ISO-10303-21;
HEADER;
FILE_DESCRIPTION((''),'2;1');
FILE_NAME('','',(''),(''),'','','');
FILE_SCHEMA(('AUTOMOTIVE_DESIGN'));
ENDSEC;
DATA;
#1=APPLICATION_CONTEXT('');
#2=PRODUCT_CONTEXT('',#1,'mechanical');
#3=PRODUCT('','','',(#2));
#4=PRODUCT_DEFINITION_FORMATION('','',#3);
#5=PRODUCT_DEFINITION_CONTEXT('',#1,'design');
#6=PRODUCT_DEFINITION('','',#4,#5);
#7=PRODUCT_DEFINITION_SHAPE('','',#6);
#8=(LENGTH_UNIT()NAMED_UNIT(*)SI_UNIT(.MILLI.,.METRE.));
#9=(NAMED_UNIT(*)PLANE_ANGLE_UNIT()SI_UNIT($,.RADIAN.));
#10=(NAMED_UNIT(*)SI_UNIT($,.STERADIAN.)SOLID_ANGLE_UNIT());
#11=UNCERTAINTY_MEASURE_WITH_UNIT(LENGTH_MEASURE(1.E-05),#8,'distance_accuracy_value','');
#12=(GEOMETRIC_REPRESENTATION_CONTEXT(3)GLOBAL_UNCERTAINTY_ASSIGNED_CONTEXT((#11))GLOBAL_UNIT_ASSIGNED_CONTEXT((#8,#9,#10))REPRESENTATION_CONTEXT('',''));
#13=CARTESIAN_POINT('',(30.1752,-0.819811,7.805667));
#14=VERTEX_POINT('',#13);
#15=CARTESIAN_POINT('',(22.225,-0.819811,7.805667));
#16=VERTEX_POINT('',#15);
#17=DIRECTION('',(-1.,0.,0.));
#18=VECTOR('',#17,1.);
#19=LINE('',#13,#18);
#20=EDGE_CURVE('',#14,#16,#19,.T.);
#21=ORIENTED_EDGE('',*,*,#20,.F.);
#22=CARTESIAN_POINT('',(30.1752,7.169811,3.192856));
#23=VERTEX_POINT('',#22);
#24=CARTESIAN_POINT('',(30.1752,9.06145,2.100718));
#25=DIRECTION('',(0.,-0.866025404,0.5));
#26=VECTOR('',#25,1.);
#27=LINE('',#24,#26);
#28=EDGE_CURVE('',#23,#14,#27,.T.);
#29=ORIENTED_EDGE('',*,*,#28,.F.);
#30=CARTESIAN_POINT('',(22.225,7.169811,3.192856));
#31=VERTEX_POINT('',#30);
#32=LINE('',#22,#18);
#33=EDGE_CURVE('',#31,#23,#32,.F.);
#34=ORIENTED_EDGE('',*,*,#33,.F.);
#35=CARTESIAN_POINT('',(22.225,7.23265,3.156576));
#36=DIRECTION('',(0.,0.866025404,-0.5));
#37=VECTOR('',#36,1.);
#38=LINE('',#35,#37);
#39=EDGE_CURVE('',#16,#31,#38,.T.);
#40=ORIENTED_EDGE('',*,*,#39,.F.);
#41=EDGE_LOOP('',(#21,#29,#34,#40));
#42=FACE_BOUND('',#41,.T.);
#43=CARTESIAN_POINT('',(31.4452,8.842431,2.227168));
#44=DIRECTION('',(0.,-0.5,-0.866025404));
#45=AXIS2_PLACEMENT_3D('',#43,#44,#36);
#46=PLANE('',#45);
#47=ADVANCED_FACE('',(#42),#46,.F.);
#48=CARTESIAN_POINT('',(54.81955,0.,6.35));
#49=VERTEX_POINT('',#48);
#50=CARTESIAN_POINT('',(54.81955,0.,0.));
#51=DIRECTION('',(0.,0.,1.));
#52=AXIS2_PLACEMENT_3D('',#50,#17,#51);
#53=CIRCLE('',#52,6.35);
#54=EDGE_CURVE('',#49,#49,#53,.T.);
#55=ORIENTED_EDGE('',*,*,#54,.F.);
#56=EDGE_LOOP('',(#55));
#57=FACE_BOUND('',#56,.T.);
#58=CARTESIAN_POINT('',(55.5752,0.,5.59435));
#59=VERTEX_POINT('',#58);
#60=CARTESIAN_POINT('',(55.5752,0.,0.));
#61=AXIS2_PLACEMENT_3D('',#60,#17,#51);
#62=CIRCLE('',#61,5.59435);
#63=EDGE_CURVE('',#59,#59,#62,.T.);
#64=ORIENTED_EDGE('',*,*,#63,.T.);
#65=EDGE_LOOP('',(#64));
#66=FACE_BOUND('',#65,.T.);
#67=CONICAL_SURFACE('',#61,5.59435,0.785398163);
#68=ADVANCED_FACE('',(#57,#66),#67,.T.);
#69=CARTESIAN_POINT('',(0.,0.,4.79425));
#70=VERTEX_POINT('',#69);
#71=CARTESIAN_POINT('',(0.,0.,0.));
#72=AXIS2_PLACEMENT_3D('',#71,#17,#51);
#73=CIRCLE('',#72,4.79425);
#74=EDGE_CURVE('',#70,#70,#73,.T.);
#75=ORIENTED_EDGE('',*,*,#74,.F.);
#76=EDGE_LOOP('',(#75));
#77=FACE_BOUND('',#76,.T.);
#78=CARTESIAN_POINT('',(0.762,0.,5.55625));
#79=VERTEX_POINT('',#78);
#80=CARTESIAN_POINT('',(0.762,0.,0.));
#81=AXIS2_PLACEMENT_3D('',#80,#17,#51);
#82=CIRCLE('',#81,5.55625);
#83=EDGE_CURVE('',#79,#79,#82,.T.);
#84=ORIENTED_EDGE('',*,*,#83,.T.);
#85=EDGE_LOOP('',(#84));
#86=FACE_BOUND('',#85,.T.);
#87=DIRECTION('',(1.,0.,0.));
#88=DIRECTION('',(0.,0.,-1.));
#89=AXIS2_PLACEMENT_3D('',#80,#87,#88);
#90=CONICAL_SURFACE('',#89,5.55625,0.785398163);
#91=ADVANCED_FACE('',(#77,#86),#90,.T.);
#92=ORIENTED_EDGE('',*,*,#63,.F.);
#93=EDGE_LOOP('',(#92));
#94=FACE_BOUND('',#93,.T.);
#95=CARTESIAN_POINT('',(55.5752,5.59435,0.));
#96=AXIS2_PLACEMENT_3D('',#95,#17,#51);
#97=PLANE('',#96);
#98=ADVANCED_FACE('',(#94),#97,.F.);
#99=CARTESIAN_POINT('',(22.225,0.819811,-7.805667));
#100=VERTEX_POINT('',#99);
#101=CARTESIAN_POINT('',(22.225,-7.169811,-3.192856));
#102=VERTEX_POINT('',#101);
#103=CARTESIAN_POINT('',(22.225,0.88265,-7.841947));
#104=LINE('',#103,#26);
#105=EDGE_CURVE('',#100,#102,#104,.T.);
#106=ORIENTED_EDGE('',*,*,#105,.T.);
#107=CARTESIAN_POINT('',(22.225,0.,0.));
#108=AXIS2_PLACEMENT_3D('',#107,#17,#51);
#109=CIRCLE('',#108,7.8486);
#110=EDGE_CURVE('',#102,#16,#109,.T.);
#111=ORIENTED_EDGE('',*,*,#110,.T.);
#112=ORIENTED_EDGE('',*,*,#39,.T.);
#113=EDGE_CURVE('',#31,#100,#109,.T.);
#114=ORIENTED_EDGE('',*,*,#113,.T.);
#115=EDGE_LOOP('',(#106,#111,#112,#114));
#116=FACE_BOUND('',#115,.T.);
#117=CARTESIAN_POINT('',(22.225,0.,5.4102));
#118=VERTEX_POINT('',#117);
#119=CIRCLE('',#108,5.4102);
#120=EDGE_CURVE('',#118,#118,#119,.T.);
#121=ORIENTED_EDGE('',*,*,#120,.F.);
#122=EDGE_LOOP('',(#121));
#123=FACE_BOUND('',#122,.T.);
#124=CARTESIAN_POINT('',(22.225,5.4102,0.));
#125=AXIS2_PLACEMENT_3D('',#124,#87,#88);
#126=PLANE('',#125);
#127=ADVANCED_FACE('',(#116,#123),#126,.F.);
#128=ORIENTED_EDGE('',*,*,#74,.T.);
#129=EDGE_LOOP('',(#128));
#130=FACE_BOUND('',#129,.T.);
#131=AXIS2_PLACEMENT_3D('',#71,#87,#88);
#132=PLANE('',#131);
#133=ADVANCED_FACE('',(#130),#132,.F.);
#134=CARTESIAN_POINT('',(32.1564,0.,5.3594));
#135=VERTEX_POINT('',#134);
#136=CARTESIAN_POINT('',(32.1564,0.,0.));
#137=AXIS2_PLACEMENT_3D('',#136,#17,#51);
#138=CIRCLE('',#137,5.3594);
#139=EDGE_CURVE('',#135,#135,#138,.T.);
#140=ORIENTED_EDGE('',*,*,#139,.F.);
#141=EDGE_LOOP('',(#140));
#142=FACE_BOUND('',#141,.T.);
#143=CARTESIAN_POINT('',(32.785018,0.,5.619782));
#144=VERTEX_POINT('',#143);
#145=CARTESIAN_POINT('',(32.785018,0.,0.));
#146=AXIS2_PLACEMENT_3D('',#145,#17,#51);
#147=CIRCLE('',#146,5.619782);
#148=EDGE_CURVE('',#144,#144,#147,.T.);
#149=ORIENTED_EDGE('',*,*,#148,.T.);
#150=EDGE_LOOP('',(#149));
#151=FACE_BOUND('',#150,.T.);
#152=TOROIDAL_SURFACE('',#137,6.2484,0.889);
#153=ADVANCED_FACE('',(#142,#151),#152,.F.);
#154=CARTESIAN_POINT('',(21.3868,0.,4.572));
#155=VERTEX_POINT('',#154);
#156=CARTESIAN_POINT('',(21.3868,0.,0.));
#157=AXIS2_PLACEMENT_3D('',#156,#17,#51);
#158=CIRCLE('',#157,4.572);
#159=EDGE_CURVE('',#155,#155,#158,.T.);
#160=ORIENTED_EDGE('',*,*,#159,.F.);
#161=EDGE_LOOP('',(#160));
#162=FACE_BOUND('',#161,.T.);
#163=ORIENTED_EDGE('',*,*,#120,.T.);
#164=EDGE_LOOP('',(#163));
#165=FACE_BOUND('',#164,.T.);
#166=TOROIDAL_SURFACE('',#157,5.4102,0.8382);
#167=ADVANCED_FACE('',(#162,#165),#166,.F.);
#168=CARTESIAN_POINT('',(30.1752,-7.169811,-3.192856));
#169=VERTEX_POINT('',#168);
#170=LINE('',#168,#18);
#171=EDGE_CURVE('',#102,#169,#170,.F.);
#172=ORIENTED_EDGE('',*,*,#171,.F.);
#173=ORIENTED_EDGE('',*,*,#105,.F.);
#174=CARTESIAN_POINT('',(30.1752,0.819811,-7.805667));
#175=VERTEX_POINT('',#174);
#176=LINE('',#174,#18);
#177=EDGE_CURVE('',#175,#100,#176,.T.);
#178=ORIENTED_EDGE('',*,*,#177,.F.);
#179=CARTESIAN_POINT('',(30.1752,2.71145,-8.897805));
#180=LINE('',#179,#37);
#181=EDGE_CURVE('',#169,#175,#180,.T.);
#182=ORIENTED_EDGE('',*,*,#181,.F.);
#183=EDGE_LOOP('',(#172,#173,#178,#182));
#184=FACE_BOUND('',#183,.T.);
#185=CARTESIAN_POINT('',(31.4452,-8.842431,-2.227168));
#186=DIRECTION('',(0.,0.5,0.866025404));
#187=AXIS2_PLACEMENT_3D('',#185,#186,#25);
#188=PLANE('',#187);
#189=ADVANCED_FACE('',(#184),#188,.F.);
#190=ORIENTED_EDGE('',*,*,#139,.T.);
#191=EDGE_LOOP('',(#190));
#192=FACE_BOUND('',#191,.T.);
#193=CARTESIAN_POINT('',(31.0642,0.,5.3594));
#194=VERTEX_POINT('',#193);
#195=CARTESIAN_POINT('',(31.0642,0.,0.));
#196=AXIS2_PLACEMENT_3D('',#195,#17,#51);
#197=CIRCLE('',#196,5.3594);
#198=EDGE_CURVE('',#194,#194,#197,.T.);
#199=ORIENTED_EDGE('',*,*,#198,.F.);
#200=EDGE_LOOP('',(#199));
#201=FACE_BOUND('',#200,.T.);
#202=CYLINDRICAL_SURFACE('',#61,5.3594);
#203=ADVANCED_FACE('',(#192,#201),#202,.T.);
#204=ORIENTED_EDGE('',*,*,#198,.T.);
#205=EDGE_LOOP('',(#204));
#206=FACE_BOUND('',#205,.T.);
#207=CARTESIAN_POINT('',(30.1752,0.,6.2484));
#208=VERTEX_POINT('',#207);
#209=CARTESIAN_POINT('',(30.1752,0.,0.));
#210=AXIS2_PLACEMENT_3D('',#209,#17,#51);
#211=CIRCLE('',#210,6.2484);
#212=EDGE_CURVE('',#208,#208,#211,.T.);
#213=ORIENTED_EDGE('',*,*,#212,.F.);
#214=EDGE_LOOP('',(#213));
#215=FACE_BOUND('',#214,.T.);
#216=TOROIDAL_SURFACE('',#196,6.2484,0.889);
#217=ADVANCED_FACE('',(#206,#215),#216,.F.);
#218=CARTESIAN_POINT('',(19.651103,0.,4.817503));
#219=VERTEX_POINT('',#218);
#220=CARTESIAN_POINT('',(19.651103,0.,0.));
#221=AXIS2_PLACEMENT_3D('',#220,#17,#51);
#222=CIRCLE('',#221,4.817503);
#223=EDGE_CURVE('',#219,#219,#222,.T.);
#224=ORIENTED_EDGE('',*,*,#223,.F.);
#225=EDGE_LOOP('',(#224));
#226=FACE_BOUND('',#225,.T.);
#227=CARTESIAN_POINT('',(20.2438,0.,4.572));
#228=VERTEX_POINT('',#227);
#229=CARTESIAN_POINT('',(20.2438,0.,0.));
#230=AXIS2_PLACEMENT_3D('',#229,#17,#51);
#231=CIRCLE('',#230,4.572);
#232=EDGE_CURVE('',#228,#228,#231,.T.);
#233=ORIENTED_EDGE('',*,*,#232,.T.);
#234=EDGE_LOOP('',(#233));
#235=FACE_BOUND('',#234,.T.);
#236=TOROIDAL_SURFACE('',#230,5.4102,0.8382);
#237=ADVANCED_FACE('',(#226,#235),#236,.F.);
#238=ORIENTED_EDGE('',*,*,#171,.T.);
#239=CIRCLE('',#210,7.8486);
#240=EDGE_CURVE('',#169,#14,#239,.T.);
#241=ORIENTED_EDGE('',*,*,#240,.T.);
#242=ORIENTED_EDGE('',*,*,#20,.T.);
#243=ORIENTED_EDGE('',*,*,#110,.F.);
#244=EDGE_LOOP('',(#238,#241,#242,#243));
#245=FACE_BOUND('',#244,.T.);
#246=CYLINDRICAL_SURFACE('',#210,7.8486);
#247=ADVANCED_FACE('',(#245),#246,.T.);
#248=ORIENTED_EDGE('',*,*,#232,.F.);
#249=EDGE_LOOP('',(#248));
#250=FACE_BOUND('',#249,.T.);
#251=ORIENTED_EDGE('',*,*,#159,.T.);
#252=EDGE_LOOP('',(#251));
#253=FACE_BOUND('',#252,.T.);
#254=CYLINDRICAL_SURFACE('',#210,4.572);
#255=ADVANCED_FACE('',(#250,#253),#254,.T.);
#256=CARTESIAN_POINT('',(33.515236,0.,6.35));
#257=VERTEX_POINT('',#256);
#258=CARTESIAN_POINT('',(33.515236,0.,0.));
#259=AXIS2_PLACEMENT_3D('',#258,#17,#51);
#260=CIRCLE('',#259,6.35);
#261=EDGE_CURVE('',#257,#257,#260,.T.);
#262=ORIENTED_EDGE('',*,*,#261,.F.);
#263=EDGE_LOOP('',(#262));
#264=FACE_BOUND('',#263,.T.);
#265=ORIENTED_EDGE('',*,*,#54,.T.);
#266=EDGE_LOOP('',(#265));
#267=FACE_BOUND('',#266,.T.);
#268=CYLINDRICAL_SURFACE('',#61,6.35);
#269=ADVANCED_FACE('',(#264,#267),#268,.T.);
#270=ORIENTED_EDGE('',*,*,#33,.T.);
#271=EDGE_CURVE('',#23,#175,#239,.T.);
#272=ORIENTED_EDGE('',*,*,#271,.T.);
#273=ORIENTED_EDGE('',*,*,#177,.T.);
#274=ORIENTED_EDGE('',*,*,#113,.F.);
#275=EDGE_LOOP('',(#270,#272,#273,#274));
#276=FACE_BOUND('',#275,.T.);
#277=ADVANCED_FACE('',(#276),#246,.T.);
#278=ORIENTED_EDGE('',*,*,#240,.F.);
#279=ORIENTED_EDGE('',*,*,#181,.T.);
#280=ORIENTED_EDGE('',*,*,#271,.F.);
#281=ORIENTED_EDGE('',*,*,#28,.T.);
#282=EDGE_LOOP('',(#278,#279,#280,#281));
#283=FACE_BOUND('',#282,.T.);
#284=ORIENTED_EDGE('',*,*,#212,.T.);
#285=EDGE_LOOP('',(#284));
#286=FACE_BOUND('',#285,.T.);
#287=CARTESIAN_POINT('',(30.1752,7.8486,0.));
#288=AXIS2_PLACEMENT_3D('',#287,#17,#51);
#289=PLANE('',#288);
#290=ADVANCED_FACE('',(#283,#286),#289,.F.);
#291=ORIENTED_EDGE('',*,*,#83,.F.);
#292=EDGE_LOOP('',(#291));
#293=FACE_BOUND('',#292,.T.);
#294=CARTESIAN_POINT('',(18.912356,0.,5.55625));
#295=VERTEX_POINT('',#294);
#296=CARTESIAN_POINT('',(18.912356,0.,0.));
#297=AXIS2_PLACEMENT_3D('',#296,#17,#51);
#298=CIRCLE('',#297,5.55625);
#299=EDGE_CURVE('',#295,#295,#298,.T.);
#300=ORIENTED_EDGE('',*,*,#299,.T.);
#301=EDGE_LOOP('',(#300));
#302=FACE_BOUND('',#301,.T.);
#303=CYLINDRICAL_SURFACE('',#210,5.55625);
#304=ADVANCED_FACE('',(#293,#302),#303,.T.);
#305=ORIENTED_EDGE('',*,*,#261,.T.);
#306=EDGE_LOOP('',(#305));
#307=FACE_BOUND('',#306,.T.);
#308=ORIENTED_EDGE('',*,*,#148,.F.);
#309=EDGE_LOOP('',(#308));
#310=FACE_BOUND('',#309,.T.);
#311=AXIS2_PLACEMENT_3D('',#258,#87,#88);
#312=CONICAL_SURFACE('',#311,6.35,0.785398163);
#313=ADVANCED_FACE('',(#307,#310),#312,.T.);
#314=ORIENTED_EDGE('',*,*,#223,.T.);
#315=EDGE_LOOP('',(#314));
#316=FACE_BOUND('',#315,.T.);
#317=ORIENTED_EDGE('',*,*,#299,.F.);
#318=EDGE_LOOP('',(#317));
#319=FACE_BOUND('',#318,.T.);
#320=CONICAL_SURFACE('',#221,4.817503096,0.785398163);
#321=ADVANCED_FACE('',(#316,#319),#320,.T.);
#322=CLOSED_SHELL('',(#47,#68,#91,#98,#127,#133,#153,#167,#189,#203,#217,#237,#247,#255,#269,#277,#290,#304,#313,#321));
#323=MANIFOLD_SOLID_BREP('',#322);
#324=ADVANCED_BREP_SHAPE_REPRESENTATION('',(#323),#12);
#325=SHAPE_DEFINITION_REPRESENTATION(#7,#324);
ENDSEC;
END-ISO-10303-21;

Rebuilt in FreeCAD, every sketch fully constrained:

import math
import FreeCAD as App
import Part
import Sketcher
from FreeCAD import Vector
Q = App.Units.Quantity

doc = App.newDocument("Part")
params = doc.addObject("Spreadsheet::Sheet", "Params")
for row, (alias, value) in enumerate([
    ("sketch1_radius", "0.033 in"),
    ("sketch1_width", "1.188 in"),
    ("sketch1_width2", "0.313 in"),
    ("sketch1_width3", "0.045 in"),
    ("sketch1_height", "0.309 in"),
    ("revolution_angle", "360 deg"),
    ("sketch2_width", "1 in"),
    ("sketch2_radius", "0.035 in"),
    ("sketch2_width2", "0.043 in"),
    ("sketch2_height", "0.246 in"),
    ("revolution2_angle", "360 deg"),
    ("sketch3_radius", "0.359 in"),
    ("sketch3_length", "1.26 in"),
    ("pocket1_length", "1.238 in"),
], start=1):
    params.set(f"A{row}", alias)
    params.set(f"B{row}", "=" + value)
    params.setAlias(f"B{row}", alias)

body = doc.addObject("PartDesign::Body", "Body")

sketch1 = body.newObject("Sketcher::SketchObject", "Sketch")
sketch1.AttachmentSupport = (doc.getObject("XY_Plane"), [""])
sketch1.MapMode = "FlatFace"
sketch1.addGeometry(Part.LineSegment(Vector(0, 4.8, 0), Vector(0, 0, 0)), False)
sketch1.addGeometry(Part.LineSegment(Vector(0, 0, 0), Vector(30.2, 0, 0)), False)
sketch1.addGeometry(Part.LineSegment(Vector(30.2, 0, 0), Vector(30.2, 7.8, 0)), False)
sketch1.addGeometry(Part.LineSegment(Vector(30.2, 7.8, 0), Vector(22.2, 7.8, 0)), False)
sketch1.addGeometry(Part.LineSegment(Vector(22.2, 7.8, 0), Vector(22.2, 5.4, 0)), False)
sketch1.addGeometry(Part.ArcOfCircle(Part.Circle(Vector(21.4, 5.4, 0), Vector(0, 0, 1), 0.8), math.radians(-90), math.radians(0)), False)
sketch1.addGeometry(Part.LineSegment(Vector(21.4, 4.6, 0), Vector(20.2, 4.6, 0)), False)
sketch1.addGeometry(Part.ArcOfCircle(Part.Circle(Vector(20.2, 5.4, 0), Vector(0, 0, 1), 0.8), math.radians(-135), math.radians(-90)), False)
sketch1.addGeometry(Part.LineSegment(Vector(19.7, 4.8, 0), Vector(18.9, 5.6, 0)), False)
sketch1.addGeometry(Part.LineSegment(Vector(18.9, 5.6, 0), Vector(0.8, 5.6, 0)), False)
sketch1.addGeometry(Part.LineSegment(Vector(0.8, 5.6, 0), Vector(0, 4.8, 0)), False)
sketch1.addConstraint(Sketcher.Constraint("Coincident", 0, 2, 1, 1))
sketch1.addConstraint(Sketcher.Constraint("Coincident", 1, 2, 2, 1))
sketch1.addConstraint(Sketcher.Constraint("Coincident", 2, 2, 3, 1))
sketch1.addConstraint(Sketcher.Constraint("Coincident", 3, 2, 4, 1))
sketch1.addConstraint(Sketcher.Constraint("Tangent", 4, 2, 5, 2))
sketch1.addConstraint(Sketcher.Constraint("Tangent", 5, 1, 6, 1))
sketch1.addConstraint(Sketcher.Constraint("Tangent", 6, 2, 7, 2))
sketch1.addConstraint(Sketcher.Constraint("Tangent", 7, 1, 8, 1))
sketch1.addConstraint(Sketcher.Constraint("Coincident", 8, 2, 9, 1))
sketch1.addConstraint(Sketcher.Constraint("Coincident", 9, 2, 10, 1))
sketch1.addConstraint(Sketcher.Constraint("Coincident", 10, 2, 0, 1))
sketch1.addConstraint(Sketcher.Constraint("Vertical", 0))
sketch1.addConstraint(Sketcher.Constraint("Horizontal", 1))
sketch1.addConstraint(Sketcher.Constraint("Vertical", 2))
sketch1.addConstraint(Sketcher.Constraint("Horizontal", 3))
sketch1.addConstraint(Sketcher.Constraint("Vertical", 4))
sketch1.addConstraint(Sketcher.Constraint("Horizontal", 6))
sketch1.addConstraint(Sketcher.Constraint("Horizontal", 9))
sketch1.addConstraint(Sketcher.Constraint("Coincident", 0, 2, -1, 1))
sketch1.addConstraint(Sketcher.Constraint("Equal", 5, 7))
sketch1.addConstraint(Sketcher.Constraint("Perpendicular", 8, 10))
sketch1.addConstraint(Sketcher.Constraint("Angle", 8, Q("135 deg")))
sketch1.addConstraint(Sketcher.Constraint("Radius", 5, Q("0.033 in")))
sketch1.addConstraint(Sketcher.Constraint("DistanceX", 1, 1, 1, 2, Q("1.188 in")))
sketch1.addConstraint(Sketcher.Constraint("DistanceX", 3, 2, 3, 1, Q("0.313 in")))
sketch1.addConstraint(Sketcher.Constraint("DistanceX", 6, 2, 6, 1, Q("0.045 in")))
sketch1.addConstraint(Sketcher.Constraint("DistanceY", 2, 1, 2, 2, Q("0.309 in")))
sketch1.addConstraint(Sketcher.Constraint("DistanceY", 4, 2, 4, 1, Q("0.096 in")))
sketch1.addConstraint(Sketcher.Constraint("DistanceX", -1, 1, 9, 2, Q("0.03 in")))
sketch1.addConstraint(Sketcher.Constraint("DistanceY", -1, 1, 8, 2, Q("0.21875 in")))
sketch1.setExpression("Constraints[22]", "Params.sketch1_radius")
sketch1.setExpression("Constraints[23]", "Params.sketch1_width")
sketch1.setExpression("Constraints[24]", "Params.sketch1_width2")
sketch1.setExpression("Constraints[25]", "Params.sketch1_width3")
sketch1.setExpression("Constraints[26]", "Params.sketch1_height")
revolution = body.newObject("PartDesign::Revolution", "Revolution")
revolution.Profile = sketch1
revolution.ReferenceAxis = (sketch1, ["H_Axis"])
revolution.setExpression("Angle", "Params.revolution_angle")

sketch2 = body.newObject("Sketcher::SketchObject", "Sketch001")
sketch2.AttachmentSupport = (doc.getObject("XY_Plane"), [""])
sketch2.MapMode = "FlatFace"
sketch2.addGeometry(Part.LineSegment(Vector(30.2, 6.2, 0), Vector(30.2, 0, 0)), False)
sketch2.addGeometry(Part.LineSegment(Vector(30.2, 0, 0), Vector(55.6, 0, 0)), False)
sketch2.addGeometry(Part.LineSegment(Vector(55.6, 0, 0), Vector(55.6, 5.6, 0)), False)
sketch2.addGeometry(Part.LineSegment(Vector(55.6, 5.6, 0), Vector(54.8, 6.3, 0)), False)
sketch2.addGeometry(Part.LineSegment(Vector(54.8, 6.3, 0), Vector(33.5, 6.3, 0)), False)
sketch2.addGeometry(Part.LineSegment(Vector(33.5, 6.3, 0), Vector(32.8, 5.6, 0)), False)
sketch2.addGeometry(Part.ArcOfCircle(Part.Circle(Vector(32.2, 6.2, 0), Vector(0, 0, 1), 0.9), math.radians(-90), math.radians(-45)), False)
sketch2.addGeometry(Part.LineSegment(Vector(32.2, 5.4, 0), Vector(31.1, 5.4, 0)), False)
sketch2.addGeometry(Part.ArcOfCircle(Part.Circle(Vector(31.1, 6.2, 0), Vector(0, 0, 1), 0.9), math.radians(-180), math.radians(-90)), False)
sketch2.addConstraint(Sketcher.Constraint("Coincident", 0, 2, 1, 1))
sketch2.addConstraint(Sketcher.Constraint("Coincident", 1, 2, 2, 1))
sketch2.addConstraint(Sketcher.Constraint("Coincident", 2, 2, 3, 1))
sketch2.addConstraint(Sketcher.Constraint("Coincident", 3, 2, 4, 1))
sketch2.addConstraint(Sketcher.Constraint("Coincident", 4, 2, 5, 1))
sketch2.addConstraint(Sketcher.Constraint("Tangent", 5, 2, 6, 2))
sketch2.addConstraint(Sketcher.Constraint("Tangent", 6, 1, 7, 1))
sketch2.addConstraint(Sketcher.Constraint("Tangent", 7, 2, 8, 2))
sketch2.addConstraint(Sketcher.Constraint("Tangent", 8, 1, 0, 1))
sketch2.addConstraint(Sketcher.Constraint("Vertical", 0))
sketch2.addConstraint(Sketcher.Constraint("Horizontal", 1))
sketch2.addConstraint(Sketcher.Constraint("Vertical", 2))
sketch2.addConstraint(Sketcher.Constraint("Horizontal", 4))
sketch2.addConstraint(Sketcher.Constraint("Horizontal", 7))
sketch2.addConstraint(Sketcher.Constraint("Equal", 6, 8))
sketch2.addConstraint(Sketcher.Constraint("PointOnObject", 0, 2, -1))
sketch2.addConstraint(Sketcher.Constraint("Perpendicular", 3, 5))
sketch2.addConstraint(Sketcher.Constraint("DistanceX", 1, 1, 1, 2, Q("1 in")))
sketch2.addConstraint(Sketcher.Constraint("Angle", 3, Q("135 deg")))
sketch2.addConstraint(Sketcher.Constraint("Radius", 6, Q("0.035 in")))
sketch2.addConstraint(Sketcher.Constraint("DistanceX", 7, 2, 7, 1, Q("0.043 in")))
sketch2.addConstraint(Sketcher.Constraint("DistanceY", 0, 2, 0, 1, Q("0.246 in")))
sketch2.addConstraint(Sketcher.Constraint("DistanceY", -1, 1, 3, 2, Q("0.25 in")))
sketch2.addConstraint(Sketcher.Constraint("DistanceX", -1, 1, 6, 3, Q("1.266 in")))
sketch2.addConstraint(Sketcher.Constraint("DistanceY", 2, 1, 2, 2, Q("5.59435 mm")))
sketch2.setExpression("Constraints[17]", "Params.sketch2_width")
sketch2.setExpression("Constraints[19]", "Params.sketch2_radius")
sketch2.setExpression("Constraints[20]", "Params.sketch2_width2")
sketch2.setExpression("Constraints[21]", "Params.sketch2_height")
revolution2 = body.newObject("PartDesign::Revolution", "Revolution001")
revolution2.Profile = sketch2
revolution2.ReferenceAxis = (sketch2, ["H_Axis"])
revolution2.setExpression("Angle", "Params.revolution2_angle")

sketch3 = body.newObject("Sketcher::SketchObject", "Sketch002")
sketch3.AttachmentSupport = (doc.getObject("YZ_Plane"), [""])
sketch3.MapMode = "FlatFace"
sketch3.addGeometry(Part.LineSegment(Vector(-6, 22, 0), Vector(-22, -6, 0)), False)
sketch3.addGeometry(Part.LineSegment(Vector(-22, -6, 0), Vector(6, -22, 0)), False)
sketch3.addGeometry(Part.LineSegment(Vector(6, -22, 0), Vector(22, 6, 0)), False)
sketch3.addGeometry(Part.LineSegment(Vector(22, 6, 0), Vector(-6, 22, 0)), False)
sketch3.addGeometry(Part.LineSegment(Vector(2, -9, 0), Vector(-9, -2, 0)), False)
sketch3.addGeometry(Part.ArcOfCircle(Part.Circle(Vector(0, 0, 0), Vector(0, 0, 1), 9), math.radians(106), math.radians(194)), False)
sketch3.addGeometry(Part.LineSegment(Vector(-2, 9, 0), Vector(9, 2, 0)), False)
sketch3.addGeometry(Part.ArcOfCircle(Part.Circle(Vector(0, 0, 0), Vector(0, 0, 1), 9), math.radians(-74), math.radians(14)), False)
sketch3.addConstraint(Sketcher.Constraint("Coincident", 0, 2, 1, 1))
sketch3.addConstraint(Sketcher.Constraint("Coincident", 1, 2, 2, 1))
sketch3.addConstraint(Sketcher.Constraint("Coincident", 2, 2, 3, 1))
sketch3.addConstraint(Sketcher.Constraint("Coincident", 3, 2, 0, 1))
sketch3.addConstraint(Sketcher.Constraint("Coincident", 4, 2, 5, 2))
sketch3.addConstraint(Sketcher.Constraint("Coincident", 5, 1, 6, 1))
sketch3.addConstraint(Sketcher.Constraint("Coincident", 6, 2, 7, 2))
sketch3.addConstraint(Sketcher.Constraint("Coincident", 7, 1, 4, 1))
sketch3.addConstraint(Sketcher.Constraint("Coincident", 5, 3, -1, 1))
sketch3.addConstraint(Sketcher.Constraint("Coincident", 7, 3, -1, 1))
sketch3.addConstraint(Sketcher.Constraint("Equal", 5, 7))
sketch3.addConstraint(Sketcher.Constraint("Symmetric", 0, 2, 2, 2, -1, 1))
sketch3.addConstraint(Sketcher.Constraint("Symmetric", 1, 2, 3, 2, -1, 1))
sketch3.addConstraint(Sketcher.Constraint("Perpendicular", 0, 1))
sketch3.addConstraint(Sketcher.Constraint("Parallel", 3, 4))
sketch3.addConstraint(Sketcher.Constraint("Parallel", 4, 6))
sketch3.addConstraint(Sketcher.Constraint("Equal", 0, 1))
sketch3.addConstraint(Sketcher.Constraint("Equal", 4, 6))
sketch3.addConstraint(Sketcher.Constraint("Angle", 0, Q("-120 deg")))
sketch3.addConstraint(Sketcher.Constraint("Radius", 5, Q("0.359 in")))
sketch3.addConstraint(Sketcher.Constraint("Distance", 0, Q("1.26 in")))
sketch3.addConstraint(Sketcher.Constraint("DistanceX", 4, 2, 5, 1, Q("0.25 in")))
sketch3.setExpression("Constraints[19]", "Params.sketch3_radius")
sketch3.setExpression("Constraints[20]", "Params.sketch3_length")
pocket1 = body.newObject("PartDesign::Pocket", "Pocket")
pocket1.Profile = sketch3
pocket1.setExpression("Length", "Params.pocket1_length")
pocket1.Reversed = True

doc.recompute()
